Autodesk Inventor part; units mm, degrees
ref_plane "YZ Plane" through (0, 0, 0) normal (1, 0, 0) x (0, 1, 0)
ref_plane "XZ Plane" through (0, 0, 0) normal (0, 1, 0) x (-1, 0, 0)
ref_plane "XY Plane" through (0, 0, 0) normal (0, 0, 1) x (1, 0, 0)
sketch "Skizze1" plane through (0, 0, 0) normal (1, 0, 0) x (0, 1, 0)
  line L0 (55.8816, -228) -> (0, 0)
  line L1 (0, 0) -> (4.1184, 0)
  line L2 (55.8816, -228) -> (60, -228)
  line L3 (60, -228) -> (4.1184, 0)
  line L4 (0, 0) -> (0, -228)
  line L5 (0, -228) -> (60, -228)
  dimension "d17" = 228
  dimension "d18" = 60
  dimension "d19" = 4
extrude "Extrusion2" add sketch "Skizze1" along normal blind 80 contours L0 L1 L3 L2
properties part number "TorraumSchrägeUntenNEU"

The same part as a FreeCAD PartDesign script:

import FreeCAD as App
import Part
import Sketcher
from FreeCAD import Vector

doc = App.newDocument("Part")
body = doc.addObject("PartDesign::Body", "Body")

sketch1 = body.newObject("Sketcher::SketchObject", "Sketch")
sketch1.AttachmentSupport = (doc.getObject("YZ_Plane"), [""])
sketch1.MapMode = "FlatFace"
sketch1.addGeometry(Part.LineSegment(Vector(0, 0, 0), Vector(55.9, -228, 0)), False)
sketch1.addGeometry(Part.LineSegment(Vector(55.9, -228, 0), Vector(60, -228, 0)), False)
sketch1.addGeometry(Part.LineSegment(Vector(60, -228, 0), Vector(4.1, 0, 0)), False)
sketch1.addGeometry(Part.LineSegment(Vector(4.1, 0, 0), Vector(0, 0, 0)), False)
sketch1.addConstraint(Sketcher.Constraint("Coincident", 0, 2, 1, 1))
sketch1.addConstraint(Sketcher.Constraint("Coincident", 1, 2, 2, 1))
sketch1.addConstraint(Sketcher.Constraint("Coincident", 2, 2, 3, 1))
sketch1.addConstraint(Sketcher.Constraint("Coincident", 3, 2, 0, 1))
sketch1.addConstraint(Sketcher.Constraint("Horizontal", 1))
sketch1.addConstraint(Sketcher.Constraint("Horizontal", 3))
sketch1.addConstraint(Sketcher.Constraint("Coincident", 3, 2, -1, 1))
sketch1.addConstraint(Sketcher.Constraint("Parallel", 0, 2))
sketch1.addConstraint(Sketcher.Constraint("DistanceY", 0, 2, -1, 1, 228.0))
sketch1.addConstraint(Sketcher.Constraint("DistanceX", -1, 1, 1, 2, 60.0))
sketch1.addConstraint(Sketcher.Constraint("DistanceX", 1, 1, 1, 2, 4.1184))
pad1 = body.newObject("PartDesign::Pad", "Pad")
pad1.Profile = sketch1
pad1.Length = 80

doc.recompute()
